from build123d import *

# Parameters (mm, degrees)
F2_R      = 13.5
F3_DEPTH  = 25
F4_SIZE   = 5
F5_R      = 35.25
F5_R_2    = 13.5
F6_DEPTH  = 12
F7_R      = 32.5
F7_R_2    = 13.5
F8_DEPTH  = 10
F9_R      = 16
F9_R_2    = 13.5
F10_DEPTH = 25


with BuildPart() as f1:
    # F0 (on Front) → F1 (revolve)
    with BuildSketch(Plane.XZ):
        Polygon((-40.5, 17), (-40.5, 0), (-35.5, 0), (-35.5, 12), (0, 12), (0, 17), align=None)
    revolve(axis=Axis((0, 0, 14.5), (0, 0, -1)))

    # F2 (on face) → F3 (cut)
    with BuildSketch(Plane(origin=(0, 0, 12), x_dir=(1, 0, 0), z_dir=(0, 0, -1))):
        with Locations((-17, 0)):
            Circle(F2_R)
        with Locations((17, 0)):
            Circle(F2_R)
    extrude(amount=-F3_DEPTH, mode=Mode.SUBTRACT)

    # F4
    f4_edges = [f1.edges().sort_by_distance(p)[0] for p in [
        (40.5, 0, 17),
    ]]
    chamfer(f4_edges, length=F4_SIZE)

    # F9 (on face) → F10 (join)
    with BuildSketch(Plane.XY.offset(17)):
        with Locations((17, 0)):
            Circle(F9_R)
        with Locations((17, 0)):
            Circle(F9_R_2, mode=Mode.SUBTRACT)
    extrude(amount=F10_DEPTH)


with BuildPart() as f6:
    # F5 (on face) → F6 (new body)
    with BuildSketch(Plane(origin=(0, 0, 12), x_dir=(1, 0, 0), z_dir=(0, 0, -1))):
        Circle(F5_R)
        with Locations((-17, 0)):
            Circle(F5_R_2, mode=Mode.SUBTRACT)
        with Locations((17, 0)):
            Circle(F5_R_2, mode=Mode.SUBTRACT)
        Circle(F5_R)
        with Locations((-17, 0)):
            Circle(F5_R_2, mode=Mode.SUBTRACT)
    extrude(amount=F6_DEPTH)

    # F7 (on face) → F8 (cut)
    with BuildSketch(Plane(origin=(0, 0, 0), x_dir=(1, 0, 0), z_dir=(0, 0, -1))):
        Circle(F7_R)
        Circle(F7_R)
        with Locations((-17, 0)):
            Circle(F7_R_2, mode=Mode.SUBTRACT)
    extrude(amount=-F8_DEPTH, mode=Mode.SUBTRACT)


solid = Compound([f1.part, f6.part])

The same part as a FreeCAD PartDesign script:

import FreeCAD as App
import Part
import Sketcher

V = App.Vector
Q = App.Units.Quantity


def edges_at(feature, points):
    """Names of the edges that pass closest to the given points."""
    edges = feature.Shape.Edges
    near = lambda p: min(range(len(edges)), key=lambda i: edges[i].distToShape(Part.Vertex(*p))[0])
    return sorted({f"Edge{near(p) + 1}" for p in points})

doc = App.newDocument("Part")
body = doc.addObject("PartDesign::Body", "Body")

# Sketch on XZ plane
sketch1 = doc.addObject("Sketcher::SketchObject", "Sketch")
body.addObject(sketch1)
sketch1.AttachmentSupport = (doc.XZ_Plane, [""])
sketch1.MapMode = "FlatFace"
sketch1.addGeometry([
    Part.LineSegment(V(-40, 17, 0), V(-40, 0, 0)),  # 0
    Part.LineSegment(V(-40, 0, 0), V(-36, 0, 0)),  # 1
    Part.LineSegment(V(-36, 0, 0), V(-36, 12, 0)),  # 2
    Part.LineSegment(V(-36, 12, 0), V(0, 12, 0)),  # 3
    Part.LineSegment(V(0, 12, 0), V(0, 17, 0)),  # 4
    Part.LineSegment(V(0, 17, 0), V(-40, 17, 0)),  # 5
], False)
sketch1.addConstraint([
    Sketcher.Constraint("Coincident", 0, 2, 1, 1),
    Sketcher.Constraint("Coincident", 1, 2, 2, 1),
    Sketcher.Constraint("Coincident", 2, 2, 3, 1),
    Sketcher.Constraint("Coincident", 3, 2, 4, 1),
    Sketcher.Constraint("Coincident", 4, 2, 5, 1),
    Sketcher.Constraint("Coincident", 5, 2, 0, 1),
    Sketcher.Constraint("Vertical", 0),
    Sketcher.Constraint("Horizontal", 1),
    Sketcher.Constraint("Vertical", 2),
    Sketcher.Constraint("Horizontal", 3),
    Sketcher.Constraint("Vertical", 4),
    Sketcher.Constraint("Horizontal", 5),
    Sketcher.Constraint("PointOnObject", 0, 2, -1),
    Sketcher.Constraint("PointOnObject", 3, 2, -2),
    Sketcher.Constraint("Equal", 1, 4),
    Sketcher.Constraint("DistanceX", 1, 1, 1, 2, Q("5 mm")),
    Sketcher.Constraint("DistanceY", 0, 2, 0, 1, Q("17 mm")),
    Sketcher.Constraint("DistanceX", 3, 1, 3, 2, Q("35.5 mm")),
])
revolution = doc.addObject("PartDesign::Revolution", "Revolution")
body.addObject(revolution)
revolution.Profile = sketch1
revolution.ReferenceAxis = (sketch1, ["V_Axis"])
revolution.Angle = 360

# Sketch on XY plane
sketch2 = doc.addObject("Sketcher::SketchObject", "Sketch001")
body.addObject(sketch2)
sketch2.AttachmentSupport = (doc.XY_Plane, [""])
sketch2.MapMode = "FlatFace"
sketch2.AttachmentOffset = App.Placement(V(0, 0, 12), App.Rotation())
sketch2.addGeometry([
    Part.Circle(V(-17, 0, 0), V(0, 0, 1), 14),
    Part.Circle(V(17, 0, 0), V(0, 0, 1), 14),
], False)
sketch2.addConstraint([
    Sketcher.Constraint("Equal", 0, 1),
    Sketcher.Constraint("Symmetric", 0, 3, 1, 3, -1, 1),
    Sketcher.Constraint("PointOnObject", 0, 3, -1),
    Sketcher.Constraint("Diameter", 0, Q("27 mm")),
    Sketcher.Constraint("DistanceX", 0, 3, -1, 1, Q("17 mm")),
])
pocket1 = doc.addObject("PartDesign::Pocket", "Pocket")
body.addObject(pocket1)
pocket1.Profile = sketch2
pocket1.Length = 25
pocket1.Reversed = True
doc.recompute()

chamfer = doc.addObject("PartDesign::Chamfer", "Chamfer")
body.addObject(chamfer)
chamfer.Base = (pocket1, edges_at(pocket1, [(40.5, 0, 17)]))
chamfer.Size = 5

# Sketch on XY plane
sketch3 = doc.addObject("Sketcher::SketchObject", "Sketch002")
body.addObject(sketch3)
sketch3.AttachmentSupport = (doc.XY_Plane, [""])
sketch3.MapMode = "FlatFace"
sketch3.AttachmentOffset = App.Placement(V(0, 0, 17), App.Rotation())
sketch3.addGeometry([
    Part.Circle(V(17, 0, 0), V(0, 0, 1), 16),
    Part.Circle(V(17, 0, 0), V(0, 0, 1), 14),
], False)
sketch3.addConstraint([
    Sketcher.Constraint("Coincident", 1, 3, 0, 3),
    Sketcher.Constraint("PointOnObject", 0, 3, -1),
    Sketcher.Constraint("Diameter", 0, Q("32 mm")),
    Sketcher.Constraint("Diameter", 1, Q("27 mm")),
    Sketcher.Constraint("DistanceX", -1, 1, 0, 3, Q("17 mm")),
])
pad1 = doc.addObject("PartDesign::Pad", "Pad")
body.addObject(pad1)
pad1.Profile = sketch3
pad1.Length = 25
body2 = doc.addObject("PartDesign::Body", "Body001")

# Sketch on XY plane
sketch4 = doc.addObject("Sketcher::SketchObject", "Sketch003")
body2.addObject(sketch4)
sketch4.AttachmentSupport = (doc.getObject("XY_Plane001"), [""])
sketch4.MapMode = "FlatFace"
sketch4.AttachmentOffset = App.Placement(V(0, 0, 12), App.Rotation())
sketch4.addGeometry([
    Part.Circle(V(0, 0, 0), V(0, 0, 1), 35),
    Part.Circle(V(-17, 0, 0), V(0, 0, 1), 14),
], False)
sketch4.addConstraint([
    Sketcher.Constraint("Coincident", 0, 3, -1, 1),
    Sketcher.Constraint("PointOnObject", 1, 3, -1),
    Sketcher.Constraint("Diameter", 1, Q("27 mm")),
    Sketcher.Constraint("Diameter", 0, Q("70.5 mm")),
    Sketcher.Constraint("DistanceX", 1, 3, -1, 1, Q("17 mm")),
])
pad2 = doc.addObject("PartDesign::Pad", "Pad001")
body2.addObject(pad2)
pad2.Profile = sketch4
pad2.Length = 12
pad2.Reversed = True

# Sketch on XY plane
sketch5 = doc.addObject("Sketcher::SketchObject", "Sketch004")
body2.addObject(sketch5)
sketch5.AttachmentSupport = (doc.getObject("XY_Plane001"), [""])
sketch5.MapMode = "FlatFace"
sketch5.addGeometry([
    Part.Circle(V(0, 0, 0), V(0, 0, 1), 32),
    Part.Circle(V(-17, 0, 0), V(0, 0, 1), 14),
], False)
sketch5.addConstraint([
    Sketcher.Constraint("Coincident", 0, 3, -1, 1),
    Sketcher.Constraint("PointOnObject", 1, 3, -1),
    Sketcher.Constraint("Diameter", 0, Q("65 mm")),
    Sketcher.Constraint("Diameter", 1, Q("27 mm")),
    Sketcher.Constraint("DistanceX", 1, 3, -1, 1, Q("17 mm")),
])
pocket2 = doc.addObject("PartDesign::Pocket", "Pocket001")
body2.addObject(pocket2)
pocket2.Profile = sketch5
pocket2.Length = 10
pocket2.Reversed = True

doc.recompute()
